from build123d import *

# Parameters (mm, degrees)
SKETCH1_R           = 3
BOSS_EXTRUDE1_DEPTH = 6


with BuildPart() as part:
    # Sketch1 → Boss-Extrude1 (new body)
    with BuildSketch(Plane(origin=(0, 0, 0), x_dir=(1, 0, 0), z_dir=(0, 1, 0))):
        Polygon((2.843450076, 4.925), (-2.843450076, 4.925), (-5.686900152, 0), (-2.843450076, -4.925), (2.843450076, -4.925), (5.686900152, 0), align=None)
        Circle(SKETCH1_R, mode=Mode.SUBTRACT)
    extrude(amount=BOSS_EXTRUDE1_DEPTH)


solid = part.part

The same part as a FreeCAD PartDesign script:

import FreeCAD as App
import Part
import Sketcher
Q = App.Units.Quantity


def add_polygon(sketch, points):
    """Adds a closed chain of lines whose ends are joined by coincident constraints."""
    first, n = sketch.GeometryCount, len(points)
    for a, b in zip(points, points[1:] + points[:1]):
        sketch.addGeometry(Part.LineSegment(App.Vector(*a, 0), App.Vector(*b, 0)), False)
    for i in range(n):
        sketch.addConstraint(Sketcher.Constraint("Coincident", first + i, 2, first + (i + 1) % n, 1))

doc = App.newDocument("Part")
body = doc.addObject("PartDesign::Body", "Body")

sketch1 = body.newObject("Sketcher::SketchObject", "Sketch")
sketch1.AttachmentSupport = (doc.getObject("XZ_Plane"), [""])
sketch1.MapMode = "FlatFace"
add_polygon(sketch1, [(2.84345, -4.925), (-2.84345, -4.925), (-5.6869, 0), (-2.84345, 4.925), (2.84345, 4.925), (5.6869, 0)])
sketch1.addGeometry(Part.Circle(App.Vector(0, 0, 0), App.Vector(0, 0, 1), 3), False)
sketch1.addConstraint(Sketcher.Constraint("Horizontal", 0))
sketch1.addConstraint(Sketcher.Constraint("Horizontal", 3))
sketch1.addConstraint(Sketcher.Constraint("Coincident", 6, 3, -1, 1))
sketch1.addConstraint(Sketcher.Constraint("Symmetric", 0, 2, 3, 2, -1, 1))
sketch1.addConstraint(Sketcher.Constraint("Symmetric", 1, 2, 4, 2, -1, 1))
sketch1.addConstraint(Sketcher.Constraint("PointOnObject", 1, 2, -1))
sketch1.addConstraint(Sketcher.Constraint("Parallel", 2, 5))
sketch1.addConstraint(Sketcher.Constraint("Vertical", 0, 2, 2, 2))
sketch1.addConstraint(Sketcher.Constraint("Diameter", 6, Q("6 mm")))
sketch1.addConstraint(Sketcher.Constraint("Angle", 1, Q("120 deg")))
sketch1.addConstraint(Sketcher.Constraint("DistanceY", 0, 2, 2, 2, Q("9.85 mm")))
sketch1.addConstraint(Sketcher.Constraint("DistanceX", 0, 2, 0, 1, Q("5.6869 mm")))
pad1 = body.newObject("PartDesign::Pad", "Pad")
pad1.Profile = sketch1
pad1.Length = 6
pad1.Reversed = True

doc.recompute()
